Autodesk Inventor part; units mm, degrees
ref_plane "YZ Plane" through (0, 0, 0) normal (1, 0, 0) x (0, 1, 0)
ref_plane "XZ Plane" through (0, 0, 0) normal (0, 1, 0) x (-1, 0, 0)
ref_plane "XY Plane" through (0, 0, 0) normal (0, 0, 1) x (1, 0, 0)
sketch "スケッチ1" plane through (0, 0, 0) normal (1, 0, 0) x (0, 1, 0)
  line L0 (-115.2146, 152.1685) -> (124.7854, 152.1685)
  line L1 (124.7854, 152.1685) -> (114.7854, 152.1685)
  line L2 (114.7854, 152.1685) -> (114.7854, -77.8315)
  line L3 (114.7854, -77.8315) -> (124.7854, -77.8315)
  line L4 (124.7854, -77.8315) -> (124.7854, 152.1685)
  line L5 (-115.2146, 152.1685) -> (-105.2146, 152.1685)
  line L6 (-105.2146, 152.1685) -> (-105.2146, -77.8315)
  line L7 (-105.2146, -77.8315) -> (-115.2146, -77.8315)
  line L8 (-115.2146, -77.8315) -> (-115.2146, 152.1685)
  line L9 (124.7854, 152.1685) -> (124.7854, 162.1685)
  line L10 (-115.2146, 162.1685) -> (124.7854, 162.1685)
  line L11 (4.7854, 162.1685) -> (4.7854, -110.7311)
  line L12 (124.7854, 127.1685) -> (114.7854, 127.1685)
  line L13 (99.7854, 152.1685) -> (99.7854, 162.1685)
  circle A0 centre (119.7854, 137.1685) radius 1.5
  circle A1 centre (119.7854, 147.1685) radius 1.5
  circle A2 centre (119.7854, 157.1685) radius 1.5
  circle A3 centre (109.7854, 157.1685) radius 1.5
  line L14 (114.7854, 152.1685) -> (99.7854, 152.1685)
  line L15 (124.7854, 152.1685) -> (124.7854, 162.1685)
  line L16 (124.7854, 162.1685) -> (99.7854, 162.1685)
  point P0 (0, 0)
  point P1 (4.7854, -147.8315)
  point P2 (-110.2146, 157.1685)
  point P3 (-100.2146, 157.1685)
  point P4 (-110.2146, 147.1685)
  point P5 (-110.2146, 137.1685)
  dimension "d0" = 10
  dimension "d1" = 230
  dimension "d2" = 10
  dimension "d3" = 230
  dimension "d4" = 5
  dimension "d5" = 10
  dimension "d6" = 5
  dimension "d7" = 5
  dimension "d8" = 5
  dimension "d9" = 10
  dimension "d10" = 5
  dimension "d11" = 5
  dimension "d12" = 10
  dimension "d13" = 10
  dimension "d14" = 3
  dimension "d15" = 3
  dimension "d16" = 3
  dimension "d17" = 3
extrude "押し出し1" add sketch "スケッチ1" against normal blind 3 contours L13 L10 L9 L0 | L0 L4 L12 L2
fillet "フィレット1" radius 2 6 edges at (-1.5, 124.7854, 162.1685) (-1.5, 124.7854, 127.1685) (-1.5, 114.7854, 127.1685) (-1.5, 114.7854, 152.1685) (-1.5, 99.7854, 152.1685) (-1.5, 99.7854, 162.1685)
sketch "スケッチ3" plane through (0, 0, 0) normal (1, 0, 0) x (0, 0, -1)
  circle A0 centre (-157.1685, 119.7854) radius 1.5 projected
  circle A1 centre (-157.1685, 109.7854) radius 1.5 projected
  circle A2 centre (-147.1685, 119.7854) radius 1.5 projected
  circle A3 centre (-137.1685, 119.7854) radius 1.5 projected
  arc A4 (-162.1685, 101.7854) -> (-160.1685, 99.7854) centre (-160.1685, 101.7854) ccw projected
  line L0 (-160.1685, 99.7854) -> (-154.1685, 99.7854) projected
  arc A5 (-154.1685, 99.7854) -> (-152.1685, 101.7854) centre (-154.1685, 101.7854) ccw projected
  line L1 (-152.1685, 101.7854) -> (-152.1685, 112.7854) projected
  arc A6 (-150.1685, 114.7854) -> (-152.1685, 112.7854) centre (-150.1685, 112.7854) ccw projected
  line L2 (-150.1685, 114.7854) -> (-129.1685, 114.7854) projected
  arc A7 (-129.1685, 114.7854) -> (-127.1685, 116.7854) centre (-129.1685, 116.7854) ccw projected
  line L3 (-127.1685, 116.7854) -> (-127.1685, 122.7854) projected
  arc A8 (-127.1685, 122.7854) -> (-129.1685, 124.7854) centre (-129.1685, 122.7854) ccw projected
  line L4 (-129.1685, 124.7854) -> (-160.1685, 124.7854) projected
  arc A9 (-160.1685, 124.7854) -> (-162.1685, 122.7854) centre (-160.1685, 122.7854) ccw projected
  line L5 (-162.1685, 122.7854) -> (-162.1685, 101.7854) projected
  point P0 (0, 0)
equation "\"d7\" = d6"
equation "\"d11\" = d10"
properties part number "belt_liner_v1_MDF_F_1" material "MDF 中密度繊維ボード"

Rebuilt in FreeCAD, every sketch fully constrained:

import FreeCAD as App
import Part
import Sketcher


def edges_at(feature, points):
    """Names of the edges that pass closest to the given points."""
    edges = feature.Shape.Edges
    near = lambda p: min(range(len(edges)), key=lambda i: edges[i].distToShape(Part.Vertex(*p))[0])
    return sorted({f"Edge{near(p) + 1}" for p in points})


def add_polygon(sketch, points):
    """Adds a closed chain of lines whose ends are joined by coincident constraints."""
    first, n = sketch.GeometryCount, len(points)
    for a, b in zip(points, points[1:] + points[:1]):
        sketch.addGeometry(Part.LineSegment(App.Vector(*a, 0), App.Vector(*b, 0)), False)
    for i in range(n):
        sketch.addConstraint(Sketcher.Constraint("Coincident", first + i, 2, first + (i + 1) % n, 1))

doc = App.newDocument("Part")
params = doc.addObject("Spreadsheet::Sheet", "Params")
for row, (alias, value) in enumerate([
    ("sketch1_diameter", "3 mm"),
    ("sketch1_width", "10 mm"),
    ("pad1_length", "3 mm"),
    ("fillet_radius", "2 mm"),
], start=1):
    params.set(f"A{row}", alias)
    params.set(f"B{row}", "=" + value)
    params.setAlias(f"B{row}", alias)

body = doc.addObject("PartDesign::Body", "Body")

# Sketch on YZ plane
sketch1 = doc.addObject("Sketcher::SketchObject", "Sketch")
body.addObject(sketch1)
sketch1.AttachmentSupport = (doc.YZ_Plane, [""])
sketch1.MapMode = "FlatFace"
add_polygon(sketch1, [(99.8, 162.2), (99.8, 152.2), (114.8, 152.2), (114.8, 127.2), (124.8, 127.2), (124.8, 162.2)])  # lines 0-5
sketch1.addGeometry(Part.Circle(App.Vector(109.8, 157.2, 0), App.Vector(0, 0, 1), 1.5), False)  # 6
sketch1.addGeometry(Part.Circle(App.Vector(119.8, 157.2, 0), App.Vector(0, 0, 1), 1.5), False)  # 7
sketch1.addGeometry(Part.Circle(App.Vector(119.8, 147.2, 0), App.Vector(0, 0, 1), 1.5), False)  # 8
sketch1.addGeometry(Part.Circle(App.Vector(119.8, 137.2, 0), App.Vector(0, 0, 1), 1.5), False)  # 9
sketch1.addConstraint([
    Sketcher.Constraint("Vertical", 0),
    Sketcher.Constraint("Horizontal", 1),
    Sketcher.Constraint("Vertical", 2),
    Sketcher.Constraint("Horizontal", 3),
    Sketcher.Constraint("Vertical", 4),
    Sketcher.Constraint("Horizontal", 5),
    Sketcher.Constraint("Equal", 6, 7),
    Sketcher.Constraint("Equal", 7, 8),
    Sketcher.Constraint("Equal", 8, 9),
    Sketcher.Constraint("Horizontal", 6, 3, 7, 3),
    Sketcher.Constraint("Vertical", 7, 3, 8, 3),
    Sketcher.Constraint("Vertical", 8, 3, 9, 3),
    Sketcher.Constraint("Equal", 3, 0),
    Sketcher.Constraint("Equal", 5, 2),
    Sketcher.Constraint("Diameter", 6, 3.0),
    Sketcher.Constraint("DistanceX", 3, 1, 3, 2, 10.0),
    Sketcher.Constraint("DistanceX", 6, 3, 7, 3, 10.0),
    Sketcher.Constraint("DistanceY", 8, 3, 7, 3, 10.0),
    Sketcher.Constraint("DistanceY", 9, 3, 8, 3, 10.0),
    Sketcher.Constraint("DistanceX", 0, 2, 6, 3, 10.0),
    Sketcher.Constraint("DistanceY", 0, 2, 6, 3, 5.0),
    Sketcher.Constraint("DistanceX", 6, 3, 1, 2, 5.0),
    Sketcher.Constraint("DistanceX", -1, 1, 6, 3, 109.7854),
    Sketcher.Constraint("DistanceY", -1, 1, 6, 3, 157.1685),
])
sketch1.setExpression("Constraints[20]", "Params.sketch1_diameter")
sketch1.setExpression("Constraints[21]", "Params.sketch1_width")
pad1 = doc.addObject("PartDesign::Pad", "Pad")
body.addObject(pad1)
pad1.Profile = sketch1
pad1.setExpression("Length", "Params.pad1_length")
pad1.Reversed = True
doc.recompute()

fillet = doc.addObject("PartDesign::Fillet", "Fillet")
body.addObject(fillet)
fillet.Base = (pad1, edges_at(pad1, [
    (-1.5, 124.785, 162.168),
    (-1.5, 124.785, 127.168),
    (-1.5, 114.785, 127.168),
    (-1.5, 114.785, 152.168),
    (-1.5, 99.785, 152.168),
    (-1.5, 99.785, 162.168),
]))
fillet.setExpression("Radius", "Params.fillet_radius")

doc.recompute()
